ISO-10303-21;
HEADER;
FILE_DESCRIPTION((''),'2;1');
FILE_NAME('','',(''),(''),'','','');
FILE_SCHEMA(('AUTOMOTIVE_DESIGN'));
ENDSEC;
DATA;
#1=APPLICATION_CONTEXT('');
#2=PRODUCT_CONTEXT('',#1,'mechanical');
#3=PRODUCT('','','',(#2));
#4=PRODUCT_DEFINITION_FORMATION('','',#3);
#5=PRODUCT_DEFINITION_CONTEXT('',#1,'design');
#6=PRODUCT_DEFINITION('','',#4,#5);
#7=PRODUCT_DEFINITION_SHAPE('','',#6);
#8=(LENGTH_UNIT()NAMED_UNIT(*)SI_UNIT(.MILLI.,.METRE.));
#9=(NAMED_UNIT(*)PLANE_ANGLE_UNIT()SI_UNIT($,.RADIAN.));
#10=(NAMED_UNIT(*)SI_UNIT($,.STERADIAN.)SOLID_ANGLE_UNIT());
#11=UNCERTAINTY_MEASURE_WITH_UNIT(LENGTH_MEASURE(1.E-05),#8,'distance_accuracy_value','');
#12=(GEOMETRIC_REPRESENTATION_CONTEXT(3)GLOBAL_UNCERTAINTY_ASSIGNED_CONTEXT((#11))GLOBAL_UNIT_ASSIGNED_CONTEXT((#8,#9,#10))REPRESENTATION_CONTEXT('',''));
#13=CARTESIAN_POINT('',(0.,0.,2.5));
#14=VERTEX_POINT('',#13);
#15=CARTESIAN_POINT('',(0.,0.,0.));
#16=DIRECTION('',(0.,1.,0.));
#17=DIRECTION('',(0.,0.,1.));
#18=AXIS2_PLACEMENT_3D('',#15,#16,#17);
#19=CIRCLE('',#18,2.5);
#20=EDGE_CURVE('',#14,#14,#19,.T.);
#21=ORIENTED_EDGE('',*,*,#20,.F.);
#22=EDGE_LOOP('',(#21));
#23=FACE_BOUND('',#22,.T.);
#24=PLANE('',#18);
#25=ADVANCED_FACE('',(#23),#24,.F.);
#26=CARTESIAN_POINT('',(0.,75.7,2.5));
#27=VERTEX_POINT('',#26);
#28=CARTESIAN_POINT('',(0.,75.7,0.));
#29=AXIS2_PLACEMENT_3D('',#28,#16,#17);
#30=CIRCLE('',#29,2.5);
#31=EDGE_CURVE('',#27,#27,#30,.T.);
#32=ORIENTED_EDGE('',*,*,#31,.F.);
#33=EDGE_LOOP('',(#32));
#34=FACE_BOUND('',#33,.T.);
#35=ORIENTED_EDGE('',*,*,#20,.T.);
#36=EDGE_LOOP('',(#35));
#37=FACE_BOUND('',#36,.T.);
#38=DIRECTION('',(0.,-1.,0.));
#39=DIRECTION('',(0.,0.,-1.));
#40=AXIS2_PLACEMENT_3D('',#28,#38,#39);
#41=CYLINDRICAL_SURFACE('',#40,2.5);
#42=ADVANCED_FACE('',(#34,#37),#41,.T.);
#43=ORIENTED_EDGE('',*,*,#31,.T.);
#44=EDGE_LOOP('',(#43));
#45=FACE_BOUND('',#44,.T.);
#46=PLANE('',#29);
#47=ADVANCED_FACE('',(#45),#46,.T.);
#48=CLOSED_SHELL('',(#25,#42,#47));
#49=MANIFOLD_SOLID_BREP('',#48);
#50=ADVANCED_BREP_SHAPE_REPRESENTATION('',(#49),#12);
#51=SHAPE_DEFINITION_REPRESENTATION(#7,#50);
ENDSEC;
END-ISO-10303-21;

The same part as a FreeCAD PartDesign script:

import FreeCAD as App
import Part
import Sketcher

V = App.Vector

doc = App.newDocument("Part")
body = doc.addObject("PartDesign::Body", "Body")

# Sketch on XZ plane
sketch1 = doc.addObject("Sketcher::SketchObject", "Sketch")
body.addObject(sketch1)
sketch1.AttachmentSupport = (doc.XZ_Plane, [""])
sketch1.MapMode = "FlatFace"
sketch1.addGeometry(Part.Circle(V(0, 0, 0), V(0, 0, 1), 2.5), False)
sketch1.addConstraint([
    Sketcher.Constraint("Coincident", 0, 3, -1, 1),
    Sketcher.Constraint("Diameter", 0, 5.0),
])
pad1 = doc.addObject("PartDesign::Pad", "Pad")
body.addObject(pad1)
pad1.Profile = sketch1
pad1.Length = 75.7
pad1.Reversed = True

doc.recompute()
